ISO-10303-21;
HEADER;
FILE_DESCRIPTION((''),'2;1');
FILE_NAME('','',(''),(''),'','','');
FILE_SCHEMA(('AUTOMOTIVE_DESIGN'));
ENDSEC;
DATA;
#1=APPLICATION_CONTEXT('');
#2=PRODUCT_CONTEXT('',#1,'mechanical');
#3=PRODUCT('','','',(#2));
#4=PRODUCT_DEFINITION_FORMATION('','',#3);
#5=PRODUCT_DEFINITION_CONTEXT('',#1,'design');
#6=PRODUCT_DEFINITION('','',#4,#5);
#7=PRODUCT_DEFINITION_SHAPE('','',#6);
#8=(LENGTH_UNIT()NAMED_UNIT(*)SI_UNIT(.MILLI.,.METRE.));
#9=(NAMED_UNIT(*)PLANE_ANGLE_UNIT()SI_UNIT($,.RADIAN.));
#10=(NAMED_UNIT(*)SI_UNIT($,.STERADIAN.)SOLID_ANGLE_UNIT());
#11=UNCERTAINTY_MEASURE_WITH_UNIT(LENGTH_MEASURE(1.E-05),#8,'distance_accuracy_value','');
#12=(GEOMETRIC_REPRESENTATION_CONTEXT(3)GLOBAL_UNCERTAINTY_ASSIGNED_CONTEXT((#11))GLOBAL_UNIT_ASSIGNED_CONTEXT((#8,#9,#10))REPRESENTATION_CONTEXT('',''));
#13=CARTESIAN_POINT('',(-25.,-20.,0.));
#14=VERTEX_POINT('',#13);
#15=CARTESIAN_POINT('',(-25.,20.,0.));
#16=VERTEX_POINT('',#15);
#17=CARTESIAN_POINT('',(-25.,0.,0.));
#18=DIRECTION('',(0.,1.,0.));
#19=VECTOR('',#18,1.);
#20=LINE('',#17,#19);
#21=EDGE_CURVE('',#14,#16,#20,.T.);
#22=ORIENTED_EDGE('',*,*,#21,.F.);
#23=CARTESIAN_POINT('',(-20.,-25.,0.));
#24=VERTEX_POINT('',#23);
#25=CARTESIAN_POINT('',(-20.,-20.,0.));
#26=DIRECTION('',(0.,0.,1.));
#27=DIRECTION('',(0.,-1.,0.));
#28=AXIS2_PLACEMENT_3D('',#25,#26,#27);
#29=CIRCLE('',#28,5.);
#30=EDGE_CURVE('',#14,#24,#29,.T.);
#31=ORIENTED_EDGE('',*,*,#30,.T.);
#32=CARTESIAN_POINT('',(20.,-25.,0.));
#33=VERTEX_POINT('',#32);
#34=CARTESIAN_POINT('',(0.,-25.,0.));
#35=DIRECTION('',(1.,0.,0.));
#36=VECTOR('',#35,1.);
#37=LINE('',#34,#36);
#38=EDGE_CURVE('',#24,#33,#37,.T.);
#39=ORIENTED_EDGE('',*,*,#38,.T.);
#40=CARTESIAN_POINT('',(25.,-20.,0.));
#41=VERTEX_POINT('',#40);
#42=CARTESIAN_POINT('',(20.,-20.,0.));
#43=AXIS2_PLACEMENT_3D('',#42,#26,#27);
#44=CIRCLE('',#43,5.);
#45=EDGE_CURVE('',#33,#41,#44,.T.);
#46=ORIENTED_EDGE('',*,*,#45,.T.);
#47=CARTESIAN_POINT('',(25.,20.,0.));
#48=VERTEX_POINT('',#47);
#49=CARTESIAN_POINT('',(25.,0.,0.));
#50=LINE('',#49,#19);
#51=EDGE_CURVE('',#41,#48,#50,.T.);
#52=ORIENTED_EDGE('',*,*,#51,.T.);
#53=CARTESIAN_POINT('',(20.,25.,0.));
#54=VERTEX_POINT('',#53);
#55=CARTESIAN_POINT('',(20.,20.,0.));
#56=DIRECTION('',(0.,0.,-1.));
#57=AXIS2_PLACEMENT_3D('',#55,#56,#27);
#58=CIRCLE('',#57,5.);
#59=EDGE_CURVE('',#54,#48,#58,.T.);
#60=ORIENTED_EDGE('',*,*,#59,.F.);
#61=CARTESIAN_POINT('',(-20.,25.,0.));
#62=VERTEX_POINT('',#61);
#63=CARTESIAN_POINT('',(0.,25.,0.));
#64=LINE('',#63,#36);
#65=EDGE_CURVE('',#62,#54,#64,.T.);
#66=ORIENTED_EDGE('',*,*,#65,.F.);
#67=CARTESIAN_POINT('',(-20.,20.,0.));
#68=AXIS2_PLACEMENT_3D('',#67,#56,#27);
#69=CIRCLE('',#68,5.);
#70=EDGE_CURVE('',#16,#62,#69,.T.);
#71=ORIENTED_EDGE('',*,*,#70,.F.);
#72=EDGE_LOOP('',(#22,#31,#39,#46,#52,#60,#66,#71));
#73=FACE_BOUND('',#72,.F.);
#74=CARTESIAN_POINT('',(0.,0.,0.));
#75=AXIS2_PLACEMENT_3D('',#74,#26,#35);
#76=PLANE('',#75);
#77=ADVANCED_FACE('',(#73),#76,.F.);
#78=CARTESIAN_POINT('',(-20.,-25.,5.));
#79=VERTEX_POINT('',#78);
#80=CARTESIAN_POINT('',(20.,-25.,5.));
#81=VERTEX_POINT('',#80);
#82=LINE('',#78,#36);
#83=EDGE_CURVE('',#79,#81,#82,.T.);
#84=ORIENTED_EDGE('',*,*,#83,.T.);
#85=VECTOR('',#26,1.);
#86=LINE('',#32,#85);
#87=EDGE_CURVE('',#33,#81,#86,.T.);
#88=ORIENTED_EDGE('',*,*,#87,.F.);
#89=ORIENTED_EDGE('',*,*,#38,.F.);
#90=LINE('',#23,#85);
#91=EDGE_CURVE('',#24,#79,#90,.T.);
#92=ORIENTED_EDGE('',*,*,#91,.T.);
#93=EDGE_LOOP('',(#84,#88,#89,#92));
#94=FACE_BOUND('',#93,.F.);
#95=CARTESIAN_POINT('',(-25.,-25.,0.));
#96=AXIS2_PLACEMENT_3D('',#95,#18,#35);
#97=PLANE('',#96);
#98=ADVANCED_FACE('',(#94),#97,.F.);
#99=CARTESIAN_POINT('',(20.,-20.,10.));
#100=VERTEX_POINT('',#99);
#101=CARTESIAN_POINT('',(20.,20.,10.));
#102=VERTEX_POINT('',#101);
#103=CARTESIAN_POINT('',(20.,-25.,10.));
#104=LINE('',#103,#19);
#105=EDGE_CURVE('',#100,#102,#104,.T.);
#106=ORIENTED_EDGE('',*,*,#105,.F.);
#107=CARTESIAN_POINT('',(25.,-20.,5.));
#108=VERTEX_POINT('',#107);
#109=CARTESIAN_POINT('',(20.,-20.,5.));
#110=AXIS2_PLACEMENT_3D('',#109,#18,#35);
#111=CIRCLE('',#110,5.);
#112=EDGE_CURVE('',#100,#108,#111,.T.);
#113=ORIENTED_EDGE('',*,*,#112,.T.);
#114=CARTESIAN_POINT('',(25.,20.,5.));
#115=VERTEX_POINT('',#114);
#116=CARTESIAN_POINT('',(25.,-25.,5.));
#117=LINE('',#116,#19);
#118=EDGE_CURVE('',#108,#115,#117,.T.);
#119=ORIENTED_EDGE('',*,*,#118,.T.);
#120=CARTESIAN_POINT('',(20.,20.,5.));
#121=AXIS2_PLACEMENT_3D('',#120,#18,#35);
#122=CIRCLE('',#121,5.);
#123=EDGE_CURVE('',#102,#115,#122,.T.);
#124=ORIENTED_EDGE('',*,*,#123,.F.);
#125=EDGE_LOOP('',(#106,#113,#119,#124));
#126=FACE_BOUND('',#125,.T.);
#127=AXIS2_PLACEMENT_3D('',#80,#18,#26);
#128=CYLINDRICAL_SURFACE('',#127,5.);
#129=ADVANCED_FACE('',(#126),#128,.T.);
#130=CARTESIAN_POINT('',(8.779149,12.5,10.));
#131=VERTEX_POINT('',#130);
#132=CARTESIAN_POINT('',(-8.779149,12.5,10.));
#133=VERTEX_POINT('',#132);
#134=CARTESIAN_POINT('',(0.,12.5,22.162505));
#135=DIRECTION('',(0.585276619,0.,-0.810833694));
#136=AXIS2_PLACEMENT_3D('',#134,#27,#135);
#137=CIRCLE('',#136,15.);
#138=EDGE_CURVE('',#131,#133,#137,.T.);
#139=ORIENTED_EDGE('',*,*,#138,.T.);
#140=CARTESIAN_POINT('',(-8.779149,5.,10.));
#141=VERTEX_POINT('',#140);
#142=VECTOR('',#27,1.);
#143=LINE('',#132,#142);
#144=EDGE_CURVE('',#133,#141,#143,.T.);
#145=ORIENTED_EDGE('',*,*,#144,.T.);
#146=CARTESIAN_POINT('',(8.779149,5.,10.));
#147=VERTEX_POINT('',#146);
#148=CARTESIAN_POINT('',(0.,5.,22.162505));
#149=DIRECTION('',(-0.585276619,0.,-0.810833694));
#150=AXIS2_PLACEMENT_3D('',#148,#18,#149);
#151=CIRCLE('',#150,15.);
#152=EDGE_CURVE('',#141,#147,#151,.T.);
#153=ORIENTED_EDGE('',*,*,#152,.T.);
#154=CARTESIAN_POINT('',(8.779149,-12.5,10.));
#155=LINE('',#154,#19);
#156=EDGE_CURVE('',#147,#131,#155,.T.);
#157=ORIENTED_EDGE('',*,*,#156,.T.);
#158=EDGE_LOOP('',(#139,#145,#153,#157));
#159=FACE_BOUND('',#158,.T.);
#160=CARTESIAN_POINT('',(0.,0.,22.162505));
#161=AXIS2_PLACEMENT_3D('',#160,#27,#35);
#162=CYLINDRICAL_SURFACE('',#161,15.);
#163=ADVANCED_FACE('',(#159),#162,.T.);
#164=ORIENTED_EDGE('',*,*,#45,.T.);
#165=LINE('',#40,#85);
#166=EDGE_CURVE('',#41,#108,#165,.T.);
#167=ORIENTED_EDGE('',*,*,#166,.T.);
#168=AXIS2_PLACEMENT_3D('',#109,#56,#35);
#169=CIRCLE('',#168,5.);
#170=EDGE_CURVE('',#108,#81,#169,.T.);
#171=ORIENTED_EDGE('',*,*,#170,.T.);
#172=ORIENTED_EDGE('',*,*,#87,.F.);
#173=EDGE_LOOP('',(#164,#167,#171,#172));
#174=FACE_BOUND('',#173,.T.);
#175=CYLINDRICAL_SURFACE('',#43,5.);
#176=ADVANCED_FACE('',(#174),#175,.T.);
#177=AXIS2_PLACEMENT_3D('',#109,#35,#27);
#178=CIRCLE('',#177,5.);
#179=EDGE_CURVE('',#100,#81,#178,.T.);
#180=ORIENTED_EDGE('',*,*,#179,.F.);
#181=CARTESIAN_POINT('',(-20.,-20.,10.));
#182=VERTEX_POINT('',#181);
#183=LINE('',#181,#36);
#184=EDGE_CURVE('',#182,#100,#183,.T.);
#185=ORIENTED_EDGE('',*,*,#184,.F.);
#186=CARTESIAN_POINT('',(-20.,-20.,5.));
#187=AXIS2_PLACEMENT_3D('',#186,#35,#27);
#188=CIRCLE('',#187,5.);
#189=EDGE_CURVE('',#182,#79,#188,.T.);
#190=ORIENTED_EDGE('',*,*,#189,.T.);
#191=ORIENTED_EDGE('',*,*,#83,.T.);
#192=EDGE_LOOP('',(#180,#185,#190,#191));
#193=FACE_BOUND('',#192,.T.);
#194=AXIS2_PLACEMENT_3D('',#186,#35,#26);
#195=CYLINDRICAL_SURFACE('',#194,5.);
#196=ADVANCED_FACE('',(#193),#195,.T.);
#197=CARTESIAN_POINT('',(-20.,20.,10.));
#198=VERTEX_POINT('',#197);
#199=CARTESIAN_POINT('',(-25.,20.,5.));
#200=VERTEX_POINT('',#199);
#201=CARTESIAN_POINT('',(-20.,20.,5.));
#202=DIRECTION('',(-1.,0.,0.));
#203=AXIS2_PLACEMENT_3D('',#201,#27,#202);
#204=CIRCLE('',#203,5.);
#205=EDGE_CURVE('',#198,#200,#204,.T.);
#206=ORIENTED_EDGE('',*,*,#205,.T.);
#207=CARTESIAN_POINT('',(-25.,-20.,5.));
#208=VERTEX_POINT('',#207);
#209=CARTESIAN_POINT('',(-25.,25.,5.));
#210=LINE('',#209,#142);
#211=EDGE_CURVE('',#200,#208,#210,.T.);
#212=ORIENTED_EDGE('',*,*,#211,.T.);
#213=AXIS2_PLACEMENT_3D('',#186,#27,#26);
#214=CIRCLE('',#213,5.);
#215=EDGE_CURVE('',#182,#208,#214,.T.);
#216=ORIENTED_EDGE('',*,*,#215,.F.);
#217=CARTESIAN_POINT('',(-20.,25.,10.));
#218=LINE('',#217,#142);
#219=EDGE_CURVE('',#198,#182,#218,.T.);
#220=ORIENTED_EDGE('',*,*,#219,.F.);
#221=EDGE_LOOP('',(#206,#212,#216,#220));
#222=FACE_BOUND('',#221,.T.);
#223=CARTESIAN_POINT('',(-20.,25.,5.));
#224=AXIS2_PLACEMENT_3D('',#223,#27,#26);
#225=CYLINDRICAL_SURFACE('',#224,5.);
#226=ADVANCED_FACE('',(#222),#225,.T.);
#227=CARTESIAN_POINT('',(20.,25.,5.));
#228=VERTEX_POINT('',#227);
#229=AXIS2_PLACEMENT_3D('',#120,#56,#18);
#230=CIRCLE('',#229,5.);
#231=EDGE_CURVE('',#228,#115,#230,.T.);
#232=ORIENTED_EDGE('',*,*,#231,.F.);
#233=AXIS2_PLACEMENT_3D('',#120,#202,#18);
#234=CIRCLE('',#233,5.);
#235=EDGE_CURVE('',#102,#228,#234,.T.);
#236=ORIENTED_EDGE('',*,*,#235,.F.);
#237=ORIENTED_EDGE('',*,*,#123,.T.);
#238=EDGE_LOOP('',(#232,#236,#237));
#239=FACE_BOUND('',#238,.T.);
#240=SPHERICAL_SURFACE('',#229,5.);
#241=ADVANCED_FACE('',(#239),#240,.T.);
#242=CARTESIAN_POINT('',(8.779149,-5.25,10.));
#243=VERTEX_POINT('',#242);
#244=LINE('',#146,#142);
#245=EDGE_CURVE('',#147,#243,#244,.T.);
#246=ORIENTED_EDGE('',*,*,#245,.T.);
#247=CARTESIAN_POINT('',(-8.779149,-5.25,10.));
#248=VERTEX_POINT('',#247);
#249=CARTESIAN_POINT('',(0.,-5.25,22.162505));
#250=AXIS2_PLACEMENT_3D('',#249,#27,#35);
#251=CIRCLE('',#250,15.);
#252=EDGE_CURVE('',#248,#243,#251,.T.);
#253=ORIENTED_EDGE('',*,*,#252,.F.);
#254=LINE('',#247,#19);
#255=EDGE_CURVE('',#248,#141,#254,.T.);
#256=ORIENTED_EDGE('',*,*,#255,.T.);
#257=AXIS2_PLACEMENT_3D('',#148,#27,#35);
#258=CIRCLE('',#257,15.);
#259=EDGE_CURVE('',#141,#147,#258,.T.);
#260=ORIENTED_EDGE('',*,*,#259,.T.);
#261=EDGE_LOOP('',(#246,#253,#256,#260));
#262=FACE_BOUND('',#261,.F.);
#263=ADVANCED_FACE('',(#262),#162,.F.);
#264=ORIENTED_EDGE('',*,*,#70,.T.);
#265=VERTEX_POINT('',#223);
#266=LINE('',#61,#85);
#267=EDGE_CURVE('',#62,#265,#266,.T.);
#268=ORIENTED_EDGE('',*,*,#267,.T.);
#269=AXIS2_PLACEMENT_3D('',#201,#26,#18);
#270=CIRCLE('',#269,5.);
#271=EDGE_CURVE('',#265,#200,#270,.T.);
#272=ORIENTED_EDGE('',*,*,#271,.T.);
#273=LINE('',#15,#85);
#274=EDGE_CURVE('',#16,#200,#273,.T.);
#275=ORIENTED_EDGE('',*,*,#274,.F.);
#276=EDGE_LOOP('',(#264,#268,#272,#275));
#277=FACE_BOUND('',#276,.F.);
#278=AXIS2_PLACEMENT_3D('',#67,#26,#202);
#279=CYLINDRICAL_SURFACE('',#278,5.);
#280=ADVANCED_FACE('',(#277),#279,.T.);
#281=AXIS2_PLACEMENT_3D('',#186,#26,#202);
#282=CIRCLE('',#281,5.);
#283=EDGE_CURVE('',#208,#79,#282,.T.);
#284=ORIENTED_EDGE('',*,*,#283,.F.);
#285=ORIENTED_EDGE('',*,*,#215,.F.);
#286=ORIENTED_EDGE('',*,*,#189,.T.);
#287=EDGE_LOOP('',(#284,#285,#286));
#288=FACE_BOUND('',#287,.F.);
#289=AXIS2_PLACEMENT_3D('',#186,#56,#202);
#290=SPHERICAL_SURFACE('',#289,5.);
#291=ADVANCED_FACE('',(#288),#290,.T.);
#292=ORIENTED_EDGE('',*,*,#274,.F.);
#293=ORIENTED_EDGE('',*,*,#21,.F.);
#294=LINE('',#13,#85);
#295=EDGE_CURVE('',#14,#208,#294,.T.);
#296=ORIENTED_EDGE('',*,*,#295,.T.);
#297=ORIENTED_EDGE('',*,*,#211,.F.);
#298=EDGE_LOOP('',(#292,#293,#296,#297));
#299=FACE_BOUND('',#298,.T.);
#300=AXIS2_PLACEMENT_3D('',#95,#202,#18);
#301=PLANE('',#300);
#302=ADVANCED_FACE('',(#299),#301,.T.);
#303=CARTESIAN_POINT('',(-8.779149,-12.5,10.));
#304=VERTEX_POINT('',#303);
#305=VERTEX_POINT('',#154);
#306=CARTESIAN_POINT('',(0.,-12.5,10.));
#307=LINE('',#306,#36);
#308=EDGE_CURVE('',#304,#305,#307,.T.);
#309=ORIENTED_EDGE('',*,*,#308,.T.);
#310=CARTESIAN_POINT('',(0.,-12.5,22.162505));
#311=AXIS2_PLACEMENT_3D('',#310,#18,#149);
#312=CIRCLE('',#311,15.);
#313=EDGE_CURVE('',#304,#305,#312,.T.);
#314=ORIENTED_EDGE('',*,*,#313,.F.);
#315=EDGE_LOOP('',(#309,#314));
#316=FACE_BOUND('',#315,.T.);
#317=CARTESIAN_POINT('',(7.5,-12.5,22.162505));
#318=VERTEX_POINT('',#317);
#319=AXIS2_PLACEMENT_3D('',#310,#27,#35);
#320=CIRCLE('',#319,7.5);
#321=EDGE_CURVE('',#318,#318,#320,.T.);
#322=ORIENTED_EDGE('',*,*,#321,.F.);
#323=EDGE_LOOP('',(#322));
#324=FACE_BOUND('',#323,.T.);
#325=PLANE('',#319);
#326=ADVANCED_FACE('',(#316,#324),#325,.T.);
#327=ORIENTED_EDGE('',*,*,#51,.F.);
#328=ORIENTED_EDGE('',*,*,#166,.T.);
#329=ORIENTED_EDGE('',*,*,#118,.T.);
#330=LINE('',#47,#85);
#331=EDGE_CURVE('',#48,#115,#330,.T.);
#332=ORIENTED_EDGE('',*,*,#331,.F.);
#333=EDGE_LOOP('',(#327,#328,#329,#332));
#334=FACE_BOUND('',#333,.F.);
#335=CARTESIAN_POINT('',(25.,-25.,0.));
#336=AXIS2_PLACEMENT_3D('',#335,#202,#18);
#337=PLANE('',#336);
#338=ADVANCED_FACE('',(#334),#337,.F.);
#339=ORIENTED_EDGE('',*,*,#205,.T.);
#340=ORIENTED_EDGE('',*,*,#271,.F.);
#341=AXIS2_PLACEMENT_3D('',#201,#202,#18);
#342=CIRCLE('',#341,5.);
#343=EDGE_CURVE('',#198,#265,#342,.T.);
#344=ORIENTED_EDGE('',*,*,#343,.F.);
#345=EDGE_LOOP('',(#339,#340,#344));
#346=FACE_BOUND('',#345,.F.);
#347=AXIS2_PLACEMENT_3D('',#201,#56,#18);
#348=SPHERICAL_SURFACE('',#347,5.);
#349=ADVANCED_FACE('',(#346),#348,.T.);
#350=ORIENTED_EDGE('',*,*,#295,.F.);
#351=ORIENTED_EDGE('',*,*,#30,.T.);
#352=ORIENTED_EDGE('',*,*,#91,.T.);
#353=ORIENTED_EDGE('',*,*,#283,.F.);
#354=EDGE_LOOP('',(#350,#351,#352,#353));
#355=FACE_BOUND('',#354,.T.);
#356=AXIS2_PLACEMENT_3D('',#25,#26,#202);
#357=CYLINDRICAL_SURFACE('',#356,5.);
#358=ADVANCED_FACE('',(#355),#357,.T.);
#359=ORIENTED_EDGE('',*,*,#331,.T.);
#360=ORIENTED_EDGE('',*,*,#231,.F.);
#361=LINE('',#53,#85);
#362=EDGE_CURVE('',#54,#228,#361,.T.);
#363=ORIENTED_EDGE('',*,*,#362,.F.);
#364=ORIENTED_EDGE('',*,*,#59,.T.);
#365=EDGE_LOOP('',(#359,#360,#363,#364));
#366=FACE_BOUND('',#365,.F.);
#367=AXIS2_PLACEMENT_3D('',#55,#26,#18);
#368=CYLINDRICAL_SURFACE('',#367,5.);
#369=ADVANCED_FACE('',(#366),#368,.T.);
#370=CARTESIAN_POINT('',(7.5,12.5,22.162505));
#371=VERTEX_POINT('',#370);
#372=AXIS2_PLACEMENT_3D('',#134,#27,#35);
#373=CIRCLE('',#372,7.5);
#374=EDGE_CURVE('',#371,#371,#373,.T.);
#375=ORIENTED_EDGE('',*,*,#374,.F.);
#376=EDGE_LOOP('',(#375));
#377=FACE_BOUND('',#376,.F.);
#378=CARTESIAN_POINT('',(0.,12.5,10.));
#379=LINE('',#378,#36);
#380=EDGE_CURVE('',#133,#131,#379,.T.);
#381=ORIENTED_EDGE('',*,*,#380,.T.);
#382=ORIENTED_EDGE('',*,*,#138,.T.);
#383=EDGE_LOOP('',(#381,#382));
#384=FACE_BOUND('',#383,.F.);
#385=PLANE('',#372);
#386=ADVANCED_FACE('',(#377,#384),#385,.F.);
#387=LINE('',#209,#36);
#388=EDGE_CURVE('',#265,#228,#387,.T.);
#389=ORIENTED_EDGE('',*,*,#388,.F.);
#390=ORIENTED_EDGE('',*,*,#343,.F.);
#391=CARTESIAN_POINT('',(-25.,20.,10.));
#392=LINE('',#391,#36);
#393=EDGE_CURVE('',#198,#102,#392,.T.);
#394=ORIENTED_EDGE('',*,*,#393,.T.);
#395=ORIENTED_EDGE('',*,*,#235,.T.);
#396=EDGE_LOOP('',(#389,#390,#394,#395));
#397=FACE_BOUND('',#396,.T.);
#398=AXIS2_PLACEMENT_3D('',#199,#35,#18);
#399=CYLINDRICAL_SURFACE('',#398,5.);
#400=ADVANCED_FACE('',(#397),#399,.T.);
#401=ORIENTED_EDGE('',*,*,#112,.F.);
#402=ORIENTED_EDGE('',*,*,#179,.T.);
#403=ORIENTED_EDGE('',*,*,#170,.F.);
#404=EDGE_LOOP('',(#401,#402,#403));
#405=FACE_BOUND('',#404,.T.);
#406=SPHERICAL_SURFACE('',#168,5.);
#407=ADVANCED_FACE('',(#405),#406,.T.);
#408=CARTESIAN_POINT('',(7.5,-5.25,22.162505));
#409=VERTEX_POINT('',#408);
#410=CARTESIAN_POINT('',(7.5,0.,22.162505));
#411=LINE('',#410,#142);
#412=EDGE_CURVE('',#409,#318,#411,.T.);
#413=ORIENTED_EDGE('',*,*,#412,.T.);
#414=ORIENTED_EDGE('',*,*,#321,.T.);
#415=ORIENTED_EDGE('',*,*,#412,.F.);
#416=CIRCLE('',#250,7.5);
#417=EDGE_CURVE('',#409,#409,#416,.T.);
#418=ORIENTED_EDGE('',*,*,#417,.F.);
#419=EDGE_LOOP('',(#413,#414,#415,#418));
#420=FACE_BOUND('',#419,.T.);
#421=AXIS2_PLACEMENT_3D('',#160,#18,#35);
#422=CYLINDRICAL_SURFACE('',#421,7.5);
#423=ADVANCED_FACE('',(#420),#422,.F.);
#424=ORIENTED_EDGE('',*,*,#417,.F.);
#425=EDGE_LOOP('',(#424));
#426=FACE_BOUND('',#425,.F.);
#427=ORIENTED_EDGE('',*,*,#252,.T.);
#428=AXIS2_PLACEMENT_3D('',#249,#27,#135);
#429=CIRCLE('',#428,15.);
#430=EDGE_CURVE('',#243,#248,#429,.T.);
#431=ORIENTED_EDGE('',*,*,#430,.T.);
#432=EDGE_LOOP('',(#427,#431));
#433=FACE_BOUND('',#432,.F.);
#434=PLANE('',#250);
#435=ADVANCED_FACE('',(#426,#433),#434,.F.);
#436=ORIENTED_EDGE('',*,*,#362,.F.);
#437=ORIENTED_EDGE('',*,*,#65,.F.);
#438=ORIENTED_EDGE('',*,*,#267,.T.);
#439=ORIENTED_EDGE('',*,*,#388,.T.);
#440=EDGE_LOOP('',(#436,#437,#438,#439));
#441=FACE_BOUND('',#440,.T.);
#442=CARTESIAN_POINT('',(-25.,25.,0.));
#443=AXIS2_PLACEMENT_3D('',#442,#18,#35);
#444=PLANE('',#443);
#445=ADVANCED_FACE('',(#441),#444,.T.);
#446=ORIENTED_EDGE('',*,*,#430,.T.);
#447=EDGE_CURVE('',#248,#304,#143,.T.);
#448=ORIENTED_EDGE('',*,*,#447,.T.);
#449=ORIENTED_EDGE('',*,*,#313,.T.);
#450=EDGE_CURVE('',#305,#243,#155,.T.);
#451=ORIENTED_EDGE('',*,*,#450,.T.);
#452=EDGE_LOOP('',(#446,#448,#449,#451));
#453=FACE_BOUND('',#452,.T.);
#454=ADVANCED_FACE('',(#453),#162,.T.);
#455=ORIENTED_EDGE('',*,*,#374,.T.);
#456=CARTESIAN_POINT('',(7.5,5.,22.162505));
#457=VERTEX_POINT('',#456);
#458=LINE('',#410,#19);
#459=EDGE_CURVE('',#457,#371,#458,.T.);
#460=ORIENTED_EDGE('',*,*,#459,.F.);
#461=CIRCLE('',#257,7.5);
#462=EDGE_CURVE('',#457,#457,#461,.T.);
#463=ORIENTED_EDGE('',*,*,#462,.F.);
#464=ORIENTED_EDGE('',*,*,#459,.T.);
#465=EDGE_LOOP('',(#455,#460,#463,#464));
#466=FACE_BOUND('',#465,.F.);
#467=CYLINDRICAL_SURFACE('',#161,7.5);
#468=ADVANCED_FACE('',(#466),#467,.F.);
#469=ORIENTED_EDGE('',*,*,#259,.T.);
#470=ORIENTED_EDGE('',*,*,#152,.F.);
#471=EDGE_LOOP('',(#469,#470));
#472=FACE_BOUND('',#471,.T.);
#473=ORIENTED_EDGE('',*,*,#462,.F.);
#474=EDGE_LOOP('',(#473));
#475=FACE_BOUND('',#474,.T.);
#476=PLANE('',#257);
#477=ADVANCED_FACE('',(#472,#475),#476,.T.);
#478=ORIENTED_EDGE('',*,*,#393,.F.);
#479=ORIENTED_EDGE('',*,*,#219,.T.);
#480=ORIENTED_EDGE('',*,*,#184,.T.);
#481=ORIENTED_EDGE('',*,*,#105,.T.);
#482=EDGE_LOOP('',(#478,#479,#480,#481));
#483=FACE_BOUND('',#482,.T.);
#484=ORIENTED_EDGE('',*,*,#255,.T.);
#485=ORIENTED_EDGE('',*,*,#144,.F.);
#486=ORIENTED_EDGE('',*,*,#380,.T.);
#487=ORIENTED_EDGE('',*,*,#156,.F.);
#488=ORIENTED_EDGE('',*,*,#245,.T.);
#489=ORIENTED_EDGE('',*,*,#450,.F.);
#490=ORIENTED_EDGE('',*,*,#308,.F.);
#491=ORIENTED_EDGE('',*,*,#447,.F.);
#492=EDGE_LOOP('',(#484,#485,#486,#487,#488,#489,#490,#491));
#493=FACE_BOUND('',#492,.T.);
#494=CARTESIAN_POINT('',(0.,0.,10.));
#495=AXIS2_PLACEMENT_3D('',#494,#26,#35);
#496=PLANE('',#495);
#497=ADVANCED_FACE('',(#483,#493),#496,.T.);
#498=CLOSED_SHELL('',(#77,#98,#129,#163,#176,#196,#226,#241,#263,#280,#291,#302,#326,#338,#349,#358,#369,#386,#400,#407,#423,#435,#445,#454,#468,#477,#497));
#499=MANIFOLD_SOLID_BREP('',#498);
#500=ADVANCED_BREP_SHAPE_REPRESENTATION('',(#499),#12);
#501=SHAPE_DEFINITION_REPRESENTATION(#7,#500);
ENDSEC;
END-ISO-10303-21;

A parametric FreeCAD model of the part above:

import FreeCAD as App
import Part
import Sketcher

V = App.Vector
Q = App.Units.Quantity


def edges_at(feature, points):
    """Names of the edges that pass closest to the given points."""
    edges = feature.Shape.Edges
    near = lambda p: min(range(len(edges)), key=lambda i: edges[i].distToShape(Part.Vertex(*p))[0])
    return sorted({f"Edge{near(p) + 1}" for p in points})


def add_polygon(sketch, points):
    """Adds a closed chain of lines whose ends are joined by coincident constraints."""
    first, n = sketch.GeometryCount, len(points)
    for a, b in zip(points, points[1:] + points[:1]):
        sketch.addGeometry(Part.LineSegment(App.Vector(*a, 0), App.Vector(*b, 0)), False)
    for i in range(n):
        sketch.addConstraint(Sketcher.Constraint("Coincident", first + i, 2, first + (i + 1) % n, 1))

doc = App.newDocument("Part")
body = doc.addObject("PartDesign::Body", "Body")

# Sketch on XY plane
sketch1 = body.newObject("Sketcher::SketchObject", "Sketch")
sketch1.AttachmentSupport = (doc.getObject("XY_Plane"), [""])
sketch1.MapMode = "FlatFace"
add_polygon(sketch1, [(-25, 25), (-25, -25), (25, -25), (25, 25)])  # lines 0-3
sketch1.addConstraint(Sketcher.Constraint("Vertical", 0))
sketch1.addConstraint(Sketcher.Constraint("Horizontal", 1))
sketch1.addConstraint(Sketcher.Constraint("Vertical", 2))
sketch1.addConstraint(Sketcher.Constraint("Horizontal", 3))
sketch1.addConstraint(Sketcher.Constraint("Symmetric", 0, 2, 2, 2, -1, 1))
sketch1.addConstraint(Sketcher.Constraint("Equal", 3, 0))
sketch1.addConstraint(Sketcher.Constraint("DistanceX", 1, 1, 1, 2, Q("50 mm")))
pad1 = body.newObject("PartDesign::Pad", "Pad")
pad1.Profile = sketch1
pad1.Length = 10
doc.recompute()

fillet = body.newObject("PartDesign::Fillet", "Fillet")
fillet.Base = (pad1, edges_at(pad1, [(-25, -25, 5)]))
fillet.Radius = 5
doc.recompute()

fillet2 = body.newObject("PartDesign::Fillet", "Fillet001")
fillet2.Base = (fillet, edges_at(fillet, [
    (25, -25, 5),
    (-25, 25, 5),
    (25, 25, 5),
    (0, 25, 10),
    (25, 0, 10),
    (2.5, -25, 10),
    (-25, 2.5, 10),
]))
fillet2.Radius = 5

# Sketch on XZ plane
sketch2 = body.newObject("Sketcher::SketchObject", "Sketch001")
sketch2.AttachmentSupport = (doc.getObject("XZ_Plane"), [""])
sketch2.MapMode = "FlatFace"
sketch2.addGeometry(Part.Circle(V(0, 22, 0), V(0, 0, 1), 15), False)
sketch2.addGeometry(Part.Circle(V(0, 22, 0), V(0, 0, 1), 8), False)
sketch2.addConstraint(Sketcher.Constraint("Coincident", 1, 3, 0, 3))
sketch2.addConstraint(Sketcher.Constraint("PointOnObject", 0, 3, -2))
sketch2.addConstraint(Sketcher.Constraint("Diameter", 0, Q("30 mm")))
sketch2.addConstraint(Sketcher.Constraint("Diameter", 1, Q("15 mm")))
sketch2.addConstraint(Sketcher.Constraint("DistanceY", -1, 1, 0, 3, Q("22.162505 mm")))
pad2 = body.newObject("PartDesign::Pad", "Pad001")
pad2.Profile = sketch2
pad2.Type = "TwoLengths"
pad2.Length = 12.5
pad2.Length2 = 12.5

# Sketch on XZ plane
sketch3 = body.newObject("Sketcher::SketchObject", "Sketch002")
sketch3.AttachmentSupport = (doc.getObject("XZ_Plane"), [""])
sketch3.MapMode = "FlatFace"
sketch3.addGeometry(Part.Circle(V(0, 22, 0), V(0, 0, 1), 15), False)
sketch3.addGeometry(Part.Circle(V(0, 22, 0), V(0, 0, 1), 8), False)
sketch3.addConstraint(Sketcher.Constraint("Coincident", 1, 3, 0, 3))
sketch3.addConstraint(Sketcher.Constraint("PointOnObject", 0, 3, -2))
sketch3.addConstraint(Sketcher.Constraint("Diameter", 0, Q("30 mm")))
sketch3.addConstraint(Sketcher.Constraint("Diameter", 1, Q("15 mm")))
sketch3.addConstraint(Sketcher.Constraint("DistanceY", -1, 1, 0, 3, Q("22.162505 mm")))
pocket1 = body.newObject("PartDesign::Pocket", "Pocket")
pocket1.Profile = sketch3
pocket1.Type = "TwoLengths"
pocket1.Length = 5
pocket1.Length2 = 5.25

doc.recompute()
